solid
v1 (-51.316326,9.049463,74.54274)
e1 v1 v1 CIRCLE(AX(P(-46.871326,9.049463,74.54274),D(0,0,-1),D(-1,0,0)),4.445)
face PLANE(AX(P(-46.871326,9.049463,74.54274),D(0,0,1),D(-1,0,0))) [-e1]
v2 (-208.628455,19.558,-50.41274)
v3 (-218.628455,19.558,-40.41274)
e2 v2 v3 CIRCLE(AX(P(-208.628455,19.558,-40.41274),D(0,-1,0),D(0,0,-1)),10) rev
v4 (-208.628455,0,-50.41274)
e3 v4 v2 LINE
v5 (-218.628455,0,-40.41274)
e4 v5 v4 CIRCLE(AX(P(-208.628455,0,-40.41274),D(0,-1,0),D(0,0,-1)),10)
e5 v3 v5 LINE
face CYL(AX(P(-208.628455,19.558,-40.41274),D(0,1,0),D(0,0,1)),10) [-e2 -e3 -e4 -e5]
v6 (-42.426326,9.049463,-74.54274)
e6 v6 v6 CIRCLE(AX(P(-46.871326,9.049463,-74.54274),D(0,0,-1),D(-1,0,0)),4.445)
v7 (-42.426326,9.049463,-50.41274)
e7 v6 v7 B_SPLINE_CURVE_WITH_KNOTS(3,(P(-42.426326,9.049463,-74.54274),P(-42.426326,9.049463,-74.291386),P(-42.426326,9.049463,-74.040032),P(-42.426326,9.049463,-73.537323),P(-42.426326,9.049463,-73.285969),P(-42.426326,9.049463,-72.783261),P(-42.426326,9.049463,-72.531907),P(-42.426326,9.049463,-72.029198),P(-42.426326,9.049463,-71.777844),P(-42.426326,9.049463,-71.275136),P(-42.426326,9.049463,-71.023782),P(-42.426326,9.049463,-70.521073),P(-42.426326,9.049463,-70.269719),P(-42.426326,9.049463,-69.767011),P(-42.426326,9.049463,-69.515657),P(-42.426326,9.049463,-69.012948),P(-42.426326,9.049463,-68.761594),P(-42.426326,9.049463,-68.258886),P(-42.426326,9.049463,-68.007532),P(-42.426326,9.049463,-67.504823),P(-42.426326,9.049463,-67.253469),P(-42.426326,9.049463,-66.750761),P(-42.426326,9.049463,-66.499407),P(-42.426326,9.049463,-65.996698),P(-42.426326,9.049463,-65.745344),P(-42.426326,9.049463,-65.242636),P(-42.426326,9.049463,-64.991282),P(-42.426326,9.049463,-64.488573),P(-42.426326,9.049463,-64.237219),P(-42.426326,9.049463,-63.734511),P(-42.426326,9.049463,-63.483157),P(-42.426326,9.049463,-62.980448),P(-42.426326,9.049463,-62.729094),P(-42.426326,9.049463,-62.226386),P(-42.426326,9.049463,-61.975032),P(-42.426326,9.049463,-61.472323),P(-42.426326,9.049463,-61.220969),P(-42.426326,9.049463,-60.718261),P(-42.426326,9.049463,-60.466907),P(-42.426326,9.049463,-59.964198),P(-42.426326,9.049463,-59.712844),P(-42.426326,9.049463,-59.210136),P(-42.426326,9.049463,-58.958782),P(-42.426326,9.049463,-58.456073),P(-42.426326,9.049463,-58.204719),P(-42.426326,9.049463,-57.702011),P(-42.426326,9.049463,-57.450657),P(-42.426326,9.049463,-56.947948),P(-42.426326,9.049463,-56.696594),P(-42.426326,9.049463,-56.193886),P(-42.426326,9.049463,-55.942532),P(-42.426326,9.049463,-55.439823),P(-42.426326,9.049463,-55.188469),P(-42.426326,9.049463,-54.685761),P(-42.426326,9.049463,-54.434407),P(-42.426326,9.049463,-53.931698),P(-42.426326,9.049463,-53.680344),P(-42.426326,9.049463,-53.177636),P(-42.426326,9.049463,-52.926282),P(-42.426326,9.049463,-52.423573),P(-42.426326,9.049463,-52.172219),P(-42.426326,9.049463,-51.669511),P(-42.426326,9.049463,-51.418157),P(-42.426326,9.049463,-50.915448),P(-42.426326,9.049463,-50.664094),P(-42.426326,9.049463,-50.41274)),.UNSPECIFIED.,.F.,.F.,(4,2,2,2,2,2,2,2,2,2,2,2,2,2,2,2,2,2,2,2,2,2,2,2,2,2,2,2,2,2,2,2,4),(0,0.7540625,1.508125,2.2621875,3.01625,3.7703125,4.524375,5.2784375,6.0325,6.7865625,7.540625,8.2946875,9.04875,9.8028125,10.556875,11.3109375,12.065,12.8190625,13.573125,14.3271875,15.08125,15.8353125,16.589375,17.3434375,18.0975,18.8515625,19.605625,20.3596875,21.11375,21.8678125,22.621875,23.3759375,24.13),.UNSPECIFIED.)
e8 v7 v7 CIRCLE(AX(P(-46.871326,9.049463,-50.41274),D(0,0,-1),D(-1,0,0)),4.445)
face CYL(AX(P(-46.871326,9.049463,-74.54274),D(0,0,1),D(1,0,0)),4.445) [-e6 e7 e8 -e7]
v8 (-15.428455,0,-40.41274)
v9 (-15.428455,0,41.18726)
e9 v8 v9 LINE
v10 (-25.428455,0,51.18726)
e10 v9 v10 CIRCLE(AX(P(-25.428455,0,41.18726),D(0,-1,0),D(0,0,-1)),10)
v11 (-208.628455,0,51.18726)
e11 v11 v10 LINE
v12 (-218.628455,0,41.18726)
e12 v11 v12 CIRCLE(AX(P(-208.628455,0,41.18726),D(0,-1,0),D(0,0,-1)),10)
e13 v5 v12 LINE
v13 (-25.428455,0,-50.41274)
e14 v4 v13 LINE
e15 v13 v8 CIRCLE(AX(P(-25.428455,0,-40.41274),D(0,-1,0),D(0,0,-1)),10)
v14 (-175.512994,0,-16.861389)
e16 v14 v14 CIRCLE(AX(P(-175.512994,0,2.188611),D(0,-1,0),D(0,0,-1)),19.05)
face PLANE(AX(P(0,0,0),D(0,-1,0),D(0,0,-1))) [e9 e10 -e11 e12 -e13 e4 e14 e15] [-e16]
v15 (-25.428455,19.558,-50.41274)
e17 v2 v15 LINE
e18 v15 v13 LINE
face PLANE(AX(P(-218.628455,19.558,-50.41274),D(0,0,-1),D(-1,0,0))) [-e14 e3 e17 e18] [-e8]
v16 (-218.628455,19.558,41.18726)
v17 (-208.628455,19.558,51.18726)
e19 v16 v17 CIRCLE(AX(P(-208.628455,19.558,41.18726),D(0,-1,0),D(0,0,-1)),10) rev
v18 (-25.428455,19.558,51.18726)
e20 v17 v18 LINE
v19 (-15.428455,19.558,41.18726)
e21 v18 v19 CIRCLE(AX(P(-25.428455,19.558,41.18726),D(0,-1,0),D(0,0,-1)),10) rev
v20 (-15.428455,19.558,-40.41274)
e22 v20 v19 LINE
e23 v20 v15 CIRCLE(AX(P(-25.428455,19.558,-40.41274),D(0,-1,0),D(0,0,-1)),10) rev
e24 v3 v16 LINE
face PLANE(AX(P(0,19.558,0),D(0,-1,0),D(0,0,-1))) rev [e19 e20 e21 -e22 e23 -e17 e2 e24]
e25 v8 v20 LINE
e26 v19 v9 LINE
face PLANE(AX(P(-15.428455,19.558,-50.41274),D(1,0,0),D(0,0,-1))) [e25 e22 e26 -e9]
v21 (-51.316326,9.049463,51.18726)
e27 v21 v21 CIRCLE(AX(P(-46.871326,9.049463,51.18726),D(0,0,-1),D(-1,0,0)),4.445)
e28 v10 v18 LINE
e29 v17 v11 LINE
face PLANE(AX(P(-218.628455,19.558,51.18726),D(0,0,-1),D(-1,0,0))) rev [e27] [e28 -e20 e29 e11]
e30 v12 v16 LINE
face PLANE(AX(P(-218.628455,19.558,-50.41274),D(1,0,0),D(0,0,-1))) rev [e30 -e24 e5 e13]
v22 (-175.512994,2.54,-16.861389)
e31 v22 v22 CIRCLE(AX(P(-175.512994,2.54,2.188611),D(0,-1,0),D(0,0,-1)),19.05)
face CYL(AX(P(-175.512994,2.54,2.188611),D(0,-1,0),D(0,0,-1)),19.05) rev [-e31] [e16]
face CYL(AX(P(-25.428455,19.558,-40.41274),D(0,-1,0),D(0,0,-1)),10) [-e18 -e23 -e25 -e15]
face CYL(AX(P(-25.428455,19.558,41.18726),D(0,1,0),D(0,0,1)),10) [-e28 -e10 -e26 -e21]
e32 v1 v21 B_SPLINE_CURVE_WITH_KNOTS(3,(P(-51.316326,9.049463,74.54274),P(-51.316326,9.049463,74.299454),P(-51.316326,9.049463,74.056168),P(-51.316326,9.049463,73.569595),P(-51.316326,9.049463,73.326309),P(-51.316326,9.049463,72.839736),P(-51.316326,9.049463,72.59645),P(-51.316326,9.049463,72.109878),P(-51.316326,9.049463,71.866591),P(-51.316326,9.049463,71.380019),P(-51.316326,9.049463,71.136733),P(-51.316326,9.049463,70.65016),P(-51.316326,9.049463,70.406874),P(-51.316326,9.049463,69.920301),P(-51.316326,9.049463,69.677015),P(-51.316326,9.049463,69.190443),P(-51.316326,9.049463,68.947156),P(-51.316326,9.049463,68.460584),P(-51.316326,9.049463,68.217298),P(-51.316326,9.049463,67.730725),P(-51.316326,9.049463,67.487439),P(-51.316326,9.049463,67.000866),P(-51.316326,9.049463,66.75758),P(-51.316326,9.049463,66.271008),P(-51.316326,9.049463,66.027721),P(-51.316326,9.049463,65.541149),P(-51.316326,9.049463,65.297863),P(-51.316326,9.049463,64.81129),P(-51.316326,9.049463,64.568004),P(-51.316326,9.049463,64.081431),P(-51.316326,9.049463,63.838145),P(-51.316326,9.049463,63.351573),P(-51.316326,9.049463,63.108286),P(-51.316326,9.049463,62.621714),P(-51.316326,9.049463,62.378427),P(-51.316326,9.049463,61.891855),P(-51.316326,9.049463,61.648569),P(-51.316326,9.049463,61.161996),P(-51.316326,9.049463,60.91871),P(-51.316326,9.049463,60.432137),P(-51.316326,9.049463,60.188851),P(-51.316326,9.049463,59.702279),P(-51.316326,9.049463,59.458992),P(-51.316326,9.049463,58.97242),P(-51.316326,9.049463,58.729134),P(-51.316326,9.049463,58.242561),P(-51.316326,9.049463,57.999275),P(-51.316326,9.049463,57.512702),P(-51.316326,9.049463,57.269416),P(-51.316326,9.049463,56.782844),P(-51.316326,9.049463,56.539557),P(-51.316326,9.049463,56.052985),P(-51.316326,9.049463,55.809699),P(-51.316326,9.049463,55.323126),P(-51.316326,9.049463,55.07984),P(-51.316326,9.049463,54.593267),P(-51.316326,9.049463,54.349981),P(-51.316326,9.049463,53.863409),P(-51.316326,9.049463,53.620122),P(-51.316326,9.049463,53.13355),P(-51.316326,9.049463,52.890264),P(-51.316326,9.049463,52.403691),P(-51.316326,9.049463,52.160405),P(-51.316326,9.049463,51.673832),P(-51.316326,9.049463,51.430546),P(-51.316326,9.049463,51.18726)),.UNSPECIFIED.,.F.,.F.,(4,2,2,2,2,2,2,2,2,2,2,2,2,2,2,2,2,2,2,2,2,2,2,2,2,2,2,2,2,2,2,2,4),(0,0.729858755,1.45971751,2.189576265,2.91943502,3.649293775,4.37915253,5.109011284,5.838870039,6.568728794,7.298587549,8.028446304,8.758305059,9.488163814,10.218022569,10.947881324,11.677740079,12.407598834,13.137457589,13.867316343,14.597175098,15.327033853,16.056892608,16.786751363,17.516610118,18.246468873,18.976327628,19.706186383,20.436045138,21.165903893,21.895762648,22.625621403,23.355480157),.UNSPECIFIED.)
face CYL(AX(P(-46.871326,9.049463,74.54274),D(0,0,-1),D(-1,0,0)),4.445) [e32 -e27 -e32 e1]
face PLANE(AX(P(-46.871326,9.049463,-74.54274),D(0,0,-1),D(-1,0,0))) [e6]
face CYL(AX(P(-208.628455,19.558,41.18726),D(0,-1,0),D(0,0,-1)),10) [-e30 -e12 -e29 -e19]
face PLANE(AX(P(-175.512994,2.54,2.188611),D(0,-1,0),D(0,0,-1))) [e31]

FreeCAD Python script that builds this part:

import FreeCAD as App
import Part
import Sketcher

V = App.Vector
Q = App.Units.Quantity


def edges_at(feature, points):
    """Names of the edges that pass closest to the given points."""
    edges = feature.Shape.Edges
    near = lambda p: min(range(len(edges)), key=lambda i: edges[i].distToShape(Part.Vertex(*p))[0])
    return sorted({f"Edge{near(p) + 1}" for p in points})

doc = App.newDocument("Part")
params = doc.addObject("Spreadsheet::Sheet", "Params")
for row, (alias, value) in enumerate([
    ("sketch1_width", "8 in"),
    ("sketch1_height", "4 in"),
    ("pad1_length", "0.77 in"),
    ("fillet_radius", "10 mm"),
    ("fillet2_radius", "10 mm"),
    ("fillet3_radius", "10 mm"),
    ("fillet4_radius", "10 mm"),
    ("sketch2_diameter", "0.35 in"),
    ("pad2_length", "0.95 in"),
    ("sketch3_diameter", "1.5 in"),
    ("pocket1_length", "0.1 in"),
], start=1):
    params.set(f"A{row}", alias)
    params.set(f"B{row}", "=" + value)
    params.setAlias(f"B{row}", alias)

body = doc.addObject("PartDesign::Body", "Body")

# Sketch on XZ plane
sketch1 = body.newObject("Sketcher::SketchObject", "Sketch")
sketch1.AttachmentSupport = (doc.getObject("XZ_Plane"), [""])
sketch1.MapMode = "FlatFace"
sketch1.addGeometry([
    Part.LineSegment(V(-219, -50, 0), V(-219, 51, 0)),
    Part.LineSegment(V(-219, 51, 0), V(-15, 51, 0)),
    Part.LineSegment(V(-15, 51, 0), V(-15, -50, 0)),
    Part.LineSegment(V(-15, -50, 0), V(-219, -50, 0)),
], False)
sketch1.addConstraint([
    Sketcher.Constraint("Coincident", 0, 2, 1, 1),
    Sketcher.Constraint("Coincident", 1, 2, 2, 1),
    Sketcher.Constraint("Coincident", 2, 2, 3, 1),
    Sketcher.Constraint("Coincident", 3, 2, 0, 1),
    Sketcher.Constraint("Vertical", 0),
    Sketcher.Constraint("Horizontal", 1),
    Sketcher.Constraint("Vertical", 2),
    Sketcher.Constraint("Horizontal", 3),
    Sketcher.Constraint("DistanceX", 1, 1, 1, 2, Q("8 in")),
    Sketcher.Constraint("DistanceY", 0, 1, 0, 2, Q("4 in")),
    Sketcher.Constraint("DistanceY", -1, 1, 0, 2, Q("51.18726 mm")),
    Sketcher.Constraint("DistanceX", 0, 2, -1, 1, Q("218.628455 mm")),
])
sketch1.setExpression("Constraints[8]", "Params.sketch1_width")
sketch1.setExpression("Constraints[9]", "Params.sketch1_height")
pad1 = body.newObject("PartDesign::Pad", "Pad")
pad1.Profile = sketch1
pad1.setExpression("Length", "Params.pad1_length")
pad1.Reversed = True
doc.recompute()

fillet = body.newObject("PartDesign::Fillet", "Fillet")
fillet.Base = (pad1, edges_at(pad1, [(-15.428, 9.779, 51.187)]))
fillet.setExpression("Radius", "Params.fillet_radius")
doc.recompute()

fillet2 = body.newObject("PartDesign::Fillet", "Fillet001")
fillet2.Base = (fillet, edges_at(fillet, [(-218.628, 9.779, -50.413)]))
fillet2.setExpression("Radius", "Params.fillet2_radius")
doc.recompute()

fillet3 = body.newObject("PartDesign::Fillet", "Fillet002")
fillet3.Base = (fillet2, edges_at(fillet2, [(-218.628, 9.779, 51.187)]))
fillet3.setExpression("Radius", "Params.fillet3_radius")
doc.recompute()

fillet4 = body.newObject("PartDesign::Fillet", "Fillet003")
fillet4.Base = (fillet3, edges_at(fillet3, [(-15.428, 9.779, -50.413)]))
fillet4.setExpression("Radius", "Params.fillet4_radius")

# Sketch on XY plane
sketch2 = body.newObject("Sketcher::SketchObject", "Sketch001")
sketch2.AttachmentSupport = (doc.getObject("XY_Plane"), [""])
sketch2.MapMode = "FlatFace"
sketch2.AttachmentOffset = App.Placement(V(0, 0, -50.41274), App.Rotation())
sketch2.addGeometry(Part.Circle(V(-46.9, 9, 0), V(0, 0, 1), 4.4), False)
sketch2.addConstraint([
    Sketcher.Constraint("Diameter", 0, Q("0.35 in")),
    Sketcher.Constraint("DistanceX", 0, 3, -1, 1, Q("46.871326 mm")),
    Sketcher.Constraint("DistanceY", -1, 1, 0, 3, Q("9.049463 mm")),
])
sketch2.setExpression("Constraints[0]", "Params.sketch2_diameter")
pad2 = body.newObject("PartDesign::Pad", "Pad001")
pad2.Profile = sketch2
pad2.setExpression("Length", "Params.pad2_length")
pad2.Reversed = True
doc.recompute()

mirrored = body.newObject("PartDesign::Mirrored", "Mirrored")
mirrored.Originals = [pad2]
mirrored.MirrorPlane = (doc.getObject("XY_Plane"), [""])
body.Tip = mirrored

# Sketch on XZ plane
sketch3 = body.newObject("Sketcher::SketchObject", "Sketch002")
sketch3.AttachmentSupport = (doc.getObject("XZ_Plane"), [""])
sketch3.MapMode = "FlatFace"
sketch3.addGeometry(Part.Circle(V(-176, 2, 0), V(0, 0, 1), 19), False)
sketch3.addConstraint([
    Sketcher.Constraint("Diameter", 0, Q("1.5 in")),
    Sketcher.Constraint("DistanceY", -1, 1, 0, 3, Q("2.188611 mm")),
    Sketcher.Constraint("DistanceX", 0, 3, -1, 1, Q("175.512994 mm")),
])
sketch3.setExpression("Constraints[0]", "Params.sketch3_diameter")
pocket1 = body.newObject("PartDesign::Pocket", "Pocket")
pocket1.Profile = sketch3
pocket1.setExpression("Length", "Params.pocket1_length")

doc.recompute()
